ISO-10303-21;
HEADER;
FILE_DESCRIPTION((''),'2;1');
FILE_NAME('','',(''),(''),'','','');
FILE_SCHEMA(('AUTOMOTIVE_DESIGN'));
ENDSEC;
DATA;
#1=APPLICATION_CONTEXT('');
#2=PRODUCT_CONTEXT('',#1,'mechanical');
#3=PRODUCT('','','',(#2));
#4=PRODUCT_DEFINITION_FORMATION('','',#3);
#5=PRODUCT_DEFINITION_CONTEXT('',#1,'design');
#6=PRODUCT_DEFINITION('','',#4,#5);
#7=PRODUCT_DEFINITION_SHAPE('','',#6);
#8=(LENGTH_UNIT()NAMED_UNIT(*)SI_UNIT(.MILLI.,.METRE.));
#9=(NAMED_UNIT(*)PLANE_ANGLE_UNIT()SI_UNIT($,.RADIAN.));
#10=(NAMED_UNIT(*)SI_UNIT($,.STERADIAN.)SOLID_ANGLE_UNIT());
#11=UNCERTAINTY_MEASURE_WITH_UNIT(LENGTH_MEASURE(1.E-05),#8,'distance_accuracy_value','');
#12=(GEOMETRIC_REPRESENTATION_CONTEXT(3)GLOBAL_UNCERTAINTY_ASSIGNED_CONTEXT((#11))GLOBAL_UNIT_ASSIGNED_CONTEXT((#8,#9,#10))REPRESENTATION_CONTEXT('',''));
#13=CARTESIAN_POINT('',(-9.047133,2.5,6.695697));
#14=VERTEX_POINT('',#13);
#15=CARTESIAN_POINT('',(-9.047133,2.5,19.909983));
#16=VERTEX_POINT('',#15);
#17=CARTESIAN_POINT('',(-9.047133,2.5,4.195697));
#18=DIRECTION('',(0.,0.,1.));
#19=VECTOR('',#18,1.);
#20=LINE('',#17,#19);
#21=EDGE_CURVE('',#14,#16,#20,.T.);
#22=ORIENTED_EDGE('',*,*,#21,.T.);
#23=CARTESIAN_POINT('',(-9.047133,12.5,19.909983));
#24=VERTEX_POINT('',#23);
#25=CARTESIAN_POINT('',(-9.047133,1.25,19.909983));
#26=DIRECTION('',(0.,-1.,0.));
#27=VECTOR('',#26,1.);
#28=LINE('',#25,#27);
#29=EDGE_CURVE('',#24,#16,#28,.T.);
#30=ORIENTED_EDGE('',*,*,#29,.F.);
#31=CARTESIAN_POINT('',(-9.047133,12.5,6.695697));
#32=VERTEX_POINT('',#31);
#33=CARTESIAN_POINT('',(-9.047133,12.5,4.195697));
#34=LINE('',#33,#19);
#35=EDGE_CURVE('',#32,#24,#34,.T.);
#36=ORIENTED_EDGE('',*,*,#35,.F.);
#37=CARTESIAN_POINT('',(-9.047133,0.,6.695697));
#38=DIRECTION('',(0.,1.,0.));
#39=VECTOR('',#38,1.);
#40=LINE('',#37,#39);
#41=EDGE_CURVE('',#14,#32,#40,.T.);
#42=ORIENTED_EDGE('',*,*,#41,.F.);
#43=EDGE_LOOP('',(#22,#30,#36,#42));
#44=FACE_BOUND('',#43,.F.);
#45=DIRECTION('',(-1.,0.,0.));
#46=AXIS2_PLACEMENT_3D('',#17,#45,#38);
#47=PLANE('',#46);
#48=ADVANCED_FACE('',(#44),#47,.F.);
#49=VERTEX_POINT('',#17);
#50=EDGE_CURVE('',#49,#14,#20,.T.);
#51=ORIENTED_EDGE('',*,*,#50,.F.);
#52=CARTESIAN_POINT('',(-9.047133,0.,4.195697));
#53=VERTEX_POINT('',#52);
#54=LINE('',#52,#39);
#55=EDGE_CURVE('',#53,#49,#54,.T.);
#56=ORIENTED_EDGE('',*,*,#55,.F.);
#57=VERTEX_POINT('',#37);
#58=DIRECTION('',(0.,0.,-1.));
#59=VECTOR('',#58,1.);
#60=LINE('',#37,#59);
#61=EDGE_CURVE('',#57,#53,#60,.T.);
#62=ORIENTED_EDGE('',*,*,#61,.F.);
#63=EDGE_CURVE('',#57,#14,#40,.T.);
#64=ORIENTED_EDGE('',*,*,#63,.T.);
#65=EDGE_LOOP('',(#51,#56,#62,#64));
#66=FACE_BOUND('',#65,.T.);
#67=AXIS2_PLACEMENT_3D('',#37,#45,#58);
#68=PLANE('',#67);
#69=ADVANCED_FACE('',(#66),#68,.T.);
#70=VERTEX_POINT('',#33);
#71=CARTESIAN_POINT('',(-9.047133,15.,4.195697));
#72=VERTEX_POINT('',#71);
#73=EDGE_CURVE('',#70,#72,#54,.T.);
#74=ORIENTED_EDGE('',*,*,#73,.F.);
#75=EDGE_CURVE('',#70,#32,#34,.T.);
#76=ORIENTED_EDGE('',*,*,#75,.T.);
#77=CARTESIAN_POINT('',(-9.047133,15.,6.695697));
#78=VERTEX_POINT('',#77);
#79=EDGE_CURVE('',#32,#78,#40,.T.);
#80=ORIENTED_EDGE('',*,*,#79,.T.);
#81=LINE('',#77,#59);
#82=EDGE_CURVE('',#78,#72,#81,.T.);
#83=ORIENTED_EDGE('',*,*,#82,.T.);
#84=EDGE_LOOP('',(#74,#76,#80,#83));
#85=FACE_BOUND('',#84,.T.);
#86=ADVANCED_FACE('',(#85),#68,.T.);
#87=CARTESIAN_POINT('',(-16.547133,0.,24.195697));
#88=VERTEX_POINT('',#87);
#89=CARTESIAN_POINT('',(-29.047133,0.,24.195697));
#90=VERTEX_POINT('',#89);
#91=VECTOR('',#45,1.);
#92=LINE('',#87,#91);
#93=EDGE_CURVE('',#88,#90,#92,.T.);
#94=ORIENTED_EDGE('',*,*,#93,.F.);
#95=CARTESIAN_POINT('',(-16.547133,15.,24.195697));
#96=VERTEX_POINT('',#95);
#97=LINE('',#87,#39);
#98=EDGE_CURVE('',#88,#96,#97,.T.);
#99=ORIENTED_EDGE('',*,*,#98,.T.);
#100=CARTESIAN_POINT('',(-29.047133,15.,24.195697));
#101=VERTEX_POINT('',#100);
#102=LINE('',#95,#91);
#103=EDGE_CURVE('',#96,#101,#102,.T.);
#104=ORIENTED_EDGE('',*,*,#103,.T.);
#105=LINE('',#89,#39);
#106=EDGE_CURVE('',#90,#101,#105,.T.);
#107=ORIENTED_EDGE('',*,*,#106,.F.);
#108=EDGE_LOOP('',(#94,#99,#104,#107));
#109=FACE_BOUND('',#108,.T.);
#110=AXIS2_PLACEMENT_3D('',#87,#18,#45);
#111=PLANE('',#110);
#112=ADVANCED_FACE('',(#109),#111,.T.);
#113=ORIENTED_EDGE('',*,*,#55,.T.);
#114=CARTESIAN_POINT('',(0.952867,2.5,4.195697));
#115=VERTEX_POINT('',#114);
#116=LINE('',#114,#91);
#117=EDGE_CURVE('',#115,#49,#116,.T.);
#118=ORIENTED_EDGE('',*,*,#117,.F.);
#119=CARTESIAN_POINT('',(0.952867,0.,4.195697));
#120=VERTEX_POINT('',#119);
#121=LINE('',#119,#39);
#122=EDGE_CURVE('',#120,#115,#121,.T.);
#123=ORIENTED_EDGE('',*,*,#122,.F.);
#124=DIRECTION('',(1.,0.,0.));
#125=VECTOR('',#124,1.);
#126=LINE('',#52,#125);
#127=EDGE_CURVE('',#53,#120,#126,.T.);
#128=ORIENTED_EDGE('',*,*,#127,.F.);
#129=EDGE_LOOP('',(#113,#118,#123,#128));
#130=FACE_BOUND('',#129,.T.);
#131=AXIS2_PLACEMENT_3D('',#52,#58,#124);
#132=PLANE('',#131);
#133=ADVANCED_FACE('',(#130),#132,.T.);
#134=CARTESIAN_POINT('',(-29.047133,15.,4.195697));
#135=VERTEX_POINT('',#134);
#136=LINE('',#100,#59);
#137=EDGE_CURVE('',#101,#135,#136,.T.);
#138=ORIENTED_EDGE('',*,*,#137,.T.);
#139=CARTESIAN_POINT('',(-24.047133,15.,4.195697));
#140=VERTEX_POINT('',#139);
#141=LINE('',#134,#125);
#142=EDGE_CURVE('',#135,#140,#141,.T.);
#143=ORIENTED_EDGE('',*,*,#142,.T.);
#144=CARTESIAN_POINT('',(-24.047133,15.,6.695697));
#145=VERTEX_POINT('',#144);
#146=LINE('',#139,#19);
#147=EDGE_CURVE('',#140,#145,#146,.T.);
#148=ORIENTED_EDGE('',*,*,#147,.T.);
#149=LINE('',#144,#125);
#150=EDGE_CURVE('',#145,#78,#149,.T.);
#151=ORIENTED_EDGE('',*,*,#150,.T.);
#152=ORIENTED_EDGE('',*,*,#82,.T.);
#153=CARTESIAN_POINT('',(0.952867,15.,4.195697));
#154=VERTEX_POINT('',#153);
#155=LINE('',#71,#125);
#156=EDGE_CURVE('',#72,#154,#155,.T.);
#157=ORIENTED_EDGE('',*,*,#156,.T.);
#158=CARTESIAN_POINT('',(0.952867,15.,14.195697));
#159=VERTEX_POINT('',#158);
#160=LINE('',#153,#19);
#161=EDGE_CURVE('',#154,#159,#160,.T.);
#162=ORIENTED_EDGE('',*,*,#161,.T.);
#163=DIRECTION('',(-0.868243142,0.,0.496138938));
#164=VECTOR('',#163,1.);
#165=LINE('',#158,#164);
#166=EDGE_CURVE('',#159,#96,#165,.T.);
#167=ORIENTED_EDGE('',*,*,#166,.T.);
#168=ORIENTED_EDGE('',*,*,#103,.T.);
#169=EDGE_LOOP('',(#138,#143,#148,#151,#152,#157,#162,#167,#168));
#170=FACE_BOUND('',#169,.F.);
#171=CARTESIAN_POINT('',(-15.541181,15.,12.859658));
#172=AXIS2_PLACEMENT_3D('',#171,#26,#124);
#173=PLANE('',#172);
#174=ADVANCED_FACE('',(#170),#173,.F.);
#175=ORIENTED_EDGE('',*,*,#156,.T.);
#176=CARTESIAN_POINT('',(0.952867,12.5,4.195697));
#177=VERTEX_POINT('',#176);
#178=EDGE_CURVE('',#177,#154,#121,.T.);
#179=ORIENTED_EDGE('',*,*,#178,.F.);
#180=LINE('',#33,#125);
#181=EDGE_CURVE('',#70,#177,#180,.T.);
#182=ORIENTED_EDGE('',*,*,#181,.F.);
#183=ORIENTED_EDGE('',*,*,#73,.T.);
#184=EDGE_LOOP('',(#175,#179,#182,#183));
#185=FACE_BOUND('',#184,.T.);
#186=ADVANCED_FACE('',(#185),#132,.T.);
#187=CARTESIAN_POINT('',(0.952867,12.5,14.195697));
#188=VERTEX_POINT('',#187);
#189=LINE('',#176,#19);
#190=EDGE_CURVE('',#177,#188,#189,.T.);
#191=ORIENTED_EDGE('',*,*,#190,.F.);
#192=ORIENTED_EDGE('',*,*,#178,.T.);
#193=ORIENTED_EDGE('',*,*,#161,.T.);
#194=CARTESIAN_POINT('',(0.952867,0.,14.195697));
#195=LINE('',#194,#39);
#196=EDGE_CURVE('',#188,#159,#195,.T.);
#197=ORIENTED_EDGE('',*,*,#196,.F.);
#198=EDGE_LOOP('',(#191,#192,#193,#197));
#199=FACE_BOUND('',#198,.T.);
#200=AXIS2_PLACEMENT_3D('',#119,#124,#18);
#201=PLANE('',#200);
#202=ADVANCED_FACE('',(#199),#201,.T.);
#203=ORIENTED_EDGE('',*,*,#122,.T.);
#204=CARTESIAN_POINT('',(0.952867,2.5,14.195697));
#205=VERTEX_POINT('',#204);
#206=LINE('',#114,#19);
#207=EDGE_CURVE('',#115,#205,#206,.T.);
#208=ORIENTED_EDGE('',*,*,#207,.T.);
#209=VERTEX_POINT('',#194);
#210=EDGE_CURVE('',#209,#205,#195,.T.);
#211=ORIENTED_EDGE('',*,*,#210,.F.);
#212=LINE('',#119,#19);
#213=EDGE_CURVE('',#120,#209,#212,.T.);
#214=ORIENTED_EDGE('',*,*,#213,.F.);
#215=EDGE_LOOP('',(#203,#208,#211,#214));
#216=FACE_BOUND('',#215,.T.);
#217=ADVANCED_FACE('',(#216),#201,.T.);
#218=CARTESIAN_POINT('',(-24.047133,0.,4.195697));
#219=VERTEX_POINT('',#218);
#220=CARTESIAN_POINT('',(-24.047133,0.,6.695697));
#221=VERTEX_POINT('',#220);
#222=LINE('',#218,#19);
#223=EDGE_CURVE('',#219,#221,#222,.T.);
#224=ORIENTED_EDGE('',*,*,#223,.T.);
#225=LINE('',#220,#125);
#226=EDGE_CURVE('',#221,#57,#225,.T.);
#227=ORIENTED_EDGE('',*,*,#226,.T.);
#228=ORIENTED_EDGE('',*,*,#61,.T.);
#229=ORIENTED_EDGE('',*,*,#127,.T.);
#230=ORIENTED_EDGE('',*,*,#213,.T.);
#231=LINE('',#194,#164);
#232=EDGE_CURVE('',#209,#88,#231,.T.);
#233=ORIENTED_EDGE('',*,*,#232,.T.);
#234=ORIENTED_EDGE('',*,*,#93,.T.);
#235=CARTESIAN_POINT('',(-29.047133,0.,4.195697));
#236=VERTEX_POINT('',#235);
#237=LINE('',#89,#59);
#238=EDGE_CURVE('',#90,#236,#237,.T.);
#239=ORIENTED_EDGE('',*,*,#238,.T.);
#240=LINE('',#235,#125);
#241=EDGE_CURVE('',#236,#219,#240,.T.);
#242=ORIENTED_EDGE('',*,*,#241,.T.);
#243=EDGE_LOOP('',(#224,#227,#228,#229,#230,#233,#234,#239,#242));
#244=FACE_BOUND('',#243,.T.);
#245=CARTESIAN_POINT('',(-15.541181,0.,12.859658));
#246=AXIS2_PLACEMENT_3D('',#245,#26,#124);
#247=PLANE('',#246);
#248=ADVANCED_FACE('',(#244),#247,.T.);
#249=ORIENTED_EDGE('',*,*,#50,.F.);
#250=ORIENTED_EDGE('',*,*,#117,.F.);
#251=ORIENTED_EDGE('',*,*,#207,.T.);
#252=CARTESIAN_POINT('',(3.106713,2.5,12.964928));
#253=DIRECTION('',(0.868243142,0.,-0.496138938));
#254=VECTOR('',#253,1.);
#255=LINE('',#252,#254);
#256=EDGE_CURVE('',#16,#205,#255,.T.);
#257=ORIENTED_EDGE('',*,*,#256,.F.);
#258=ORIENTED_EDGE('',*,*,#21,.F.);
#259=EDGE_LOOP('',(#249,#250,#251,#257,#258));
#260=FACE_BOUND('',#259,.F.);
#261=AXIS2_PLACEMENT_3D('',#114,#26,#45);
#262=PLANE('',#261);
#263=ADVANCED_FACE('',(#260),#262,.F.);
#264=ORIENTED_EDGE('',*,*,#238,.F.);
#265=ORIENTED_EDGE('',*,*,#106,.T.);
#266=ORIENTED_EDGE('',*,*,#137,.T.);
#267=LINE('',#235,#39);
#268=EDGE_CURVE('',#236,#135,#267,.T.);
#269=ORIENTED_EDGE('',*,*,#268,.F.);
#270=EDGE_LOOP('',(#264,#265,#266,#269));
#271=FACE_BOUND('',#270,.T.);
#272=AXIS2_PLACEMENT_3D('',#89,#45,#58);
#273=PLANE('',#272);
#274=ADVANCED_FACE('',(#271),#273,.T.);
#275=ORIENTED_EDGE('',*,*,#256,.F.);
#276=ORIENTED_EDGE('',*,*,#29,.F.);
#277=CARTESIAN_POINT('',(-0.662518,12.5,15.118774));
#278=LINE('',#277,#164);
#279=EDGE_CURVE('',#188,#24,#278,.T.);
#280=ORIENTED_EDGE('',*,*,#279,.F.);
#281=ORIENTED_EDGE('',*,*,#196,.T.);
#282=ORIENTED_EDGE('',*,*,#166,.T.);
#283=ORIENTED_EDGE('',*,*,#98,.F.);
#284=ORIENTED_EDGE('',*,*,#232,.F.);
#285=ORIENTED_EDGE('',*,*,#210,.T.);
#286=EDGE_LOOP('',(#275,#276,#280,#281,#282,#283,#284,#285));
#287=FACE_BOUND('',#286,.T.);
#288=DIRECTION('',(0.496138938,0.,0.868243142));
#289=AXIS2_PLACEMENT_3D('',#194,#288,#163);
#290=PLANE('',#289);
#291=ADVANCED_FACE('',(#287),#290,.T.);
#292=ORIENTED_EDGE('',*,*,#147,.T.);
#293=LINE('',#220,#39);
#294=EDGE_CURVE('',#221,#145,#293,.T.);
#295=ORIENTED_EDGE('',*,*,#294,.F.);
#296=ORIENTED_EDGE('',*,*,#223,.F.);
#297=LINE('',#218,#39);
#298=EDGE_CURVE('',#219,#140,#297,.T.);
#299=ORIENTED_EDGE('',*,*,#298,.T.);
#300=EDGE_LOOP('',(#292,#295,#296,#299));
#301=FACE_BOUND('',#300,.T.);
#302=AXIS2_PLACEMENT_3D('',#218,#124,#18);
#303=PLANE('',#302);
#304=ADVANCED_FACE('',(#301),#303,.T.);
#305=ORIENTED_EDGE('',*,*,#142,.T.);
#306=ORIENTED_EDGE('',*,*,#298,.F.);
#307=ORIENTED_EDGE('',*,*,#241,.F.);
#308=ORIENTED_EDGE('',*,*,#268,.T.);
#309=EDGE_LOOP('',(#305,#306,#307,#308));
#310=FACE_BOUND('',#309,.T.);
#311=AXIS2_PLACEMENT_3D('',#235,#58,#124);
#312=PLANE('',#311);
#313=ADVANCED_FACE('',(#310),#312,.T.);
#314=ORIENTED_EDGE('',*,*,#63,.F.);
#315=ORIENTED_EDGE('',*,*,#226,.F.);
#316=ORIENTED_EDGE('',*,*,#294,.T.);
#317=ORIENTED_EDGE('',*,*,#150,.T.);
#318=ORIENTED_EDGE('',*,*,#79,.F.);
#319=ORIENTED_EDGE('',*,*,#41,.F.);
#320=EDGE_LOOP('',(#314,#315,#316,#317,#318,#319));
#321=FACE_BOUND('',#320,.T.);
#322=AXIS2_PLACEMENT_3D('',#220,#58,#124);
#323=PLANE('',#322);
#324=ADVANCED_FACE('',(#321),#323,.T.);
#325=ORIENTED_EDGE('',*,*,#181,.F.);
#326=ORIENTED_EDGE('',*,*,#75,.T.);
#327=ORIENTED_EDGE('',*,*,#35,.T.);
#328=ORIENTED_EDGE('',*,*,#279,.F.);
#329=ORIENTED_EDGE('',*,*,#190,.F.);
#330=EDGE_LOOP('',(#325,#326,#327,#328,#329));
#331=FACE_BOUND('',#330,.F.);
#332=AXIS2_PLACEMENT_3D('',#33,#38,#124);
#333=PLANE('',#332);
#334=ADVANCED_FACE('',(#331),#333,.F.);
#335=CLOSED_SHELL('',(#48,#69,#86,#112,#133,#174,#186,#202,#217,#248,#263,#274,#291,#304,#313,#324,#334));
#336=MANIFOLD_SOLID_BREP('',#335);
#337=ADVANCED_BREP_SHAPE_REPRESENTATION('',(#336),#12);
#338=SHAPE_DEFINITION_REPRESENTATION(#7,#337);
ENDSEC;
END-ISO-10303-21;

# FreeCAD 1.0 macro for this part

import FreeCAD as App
import Part
import Sketcher
Q = App.Units.Quantity


def add_polygon(sketch, points):
    """Adds a closed chain of lines whose ends are joined by coincident constraints."""
    first, n = sketch.GeometryCount, len(points)
    for a, b in zip(points, points[1:] + points[:1]):
        sketch.addGeometry(Part.LineSegment(App.Vector(*a, 0), App.Vector(*b, 0)), False)
    for i in range(n):
        sketch.addConstraint(Sketcher.Constraint("Coincident", first + i, 2, first + (i + 1) % n, 1))

doc = App.newDocument("Part")
body = doc.addObject("PartDesign::Body", "Body")

sketch1 = body.newObject("Sketcher::SketchObject", "Sketch")
sketch1.AttachmentSupport = (doc.getObject("XZ_Plane"), [""])
sketch1.MapMode = "FlatFace"
add_polygon(sketch1, [(-16.5, 24.2), (-29, 24.2), (-29, 4.2), (-24, 4.2), (-24, 6.7), (-9, 6.7), (-9, 4.2), (1, 4.2), (1, 14.2)])
sketch1.addConstraint([
    Sketcher.Constraint("Horizontal", 0),
    Sketcher.Constraint("Vertical", 1),
    Sketcher.Constraint("Horizontal", 2),
    Sketcher.Constraint("Vertical", 3),
    Sketcher.Constraint("Horizontal", 4),
    Sketcher.Constraint("Vertical", 5),
    Sketcher.Constraint("Horizontal", 6),
    Sketcher.Constraint("Vertical", 7),
    Sketcher.Constraint("Horizontal", 2, 2, 5, 2),
    Sketcher.Constraint("Equal", 6, 7),
    Sketcher.Constraint("DistanceX", 2, 1, 2, 2, Q("5 mm")),
    Sketcher.Constraint("DistanceX", 4, 1, 4, 2, Q("15 mm")),
    Sketcher.Constraint("DistanceX", 6, 1, 6, 2, Q("10 mm")),
    Sketcher.Constraint("DistanceY", 1, 2, 1, 1, Q("20 mm")),
    Sketcher.Constraint("DistanceX", 0, 2, 0, 1, Q("12.5 mm")),
    Sketcher.Constraint("DistanceY", 3, 1, 3, 2, Q("2.5 mm")),
    Sketcher.Constraint("DistanceX", 0, 2, -1, 1, Q("29.047133 mm")),
    Sketcher.Constraint("DistanceY", -1, 1, 0, 2, Q("24.195697 mm")),
])
pad1 = body.newObject("PartDesign::Pad", "Pad")
pad1.Profile = sketch1
pad1.Length = 15
pad1.Reversed = True

sketch2 = body.newObject("Sketcher::SketchObject", "Sketch001")
sketch2.AttachmentSupport = (doc.getObject("XY_Plane"), [""])
sketch2.MapMode = "FlatFace"
sketch2.AttachmentOffset = App.Placement(App.Vector(0, 0, 4.195697), App.Rotation())
add_polygon(sketch2, [(1, 12), (1, 2), (-9, 2), (-9, 12)])
sketch2.addConstraint([
    Sketcher.Constraint("Vertical", 0),
    Sketcher.Constraint("Horizontal", 1),
    Sketcher.Constraint("Vertical", 2),
    Sketcher.Constraint("Horizontal", 3),
    Sketcher.Constraint("Equal", 3, 0),
    Sketcher.Constraint("DistanceX", 1, 2, 1, 1, Q("10 mm")),
    Sketcher.Constraint("DistanceY", -1, 1, 0, 2, Q("2.5 mm")),
    Sketcher.Constraint("DistanceX", -1, 1, 0, 2, Q("0.952867 mm")),
])
pocket1 = body.newObject("PartDesign::Pocket", "Pocket")
pocket1.Profile = sketch2
pocket1.Length = 25
pocket1.Reversed = True

doc.recompute()
